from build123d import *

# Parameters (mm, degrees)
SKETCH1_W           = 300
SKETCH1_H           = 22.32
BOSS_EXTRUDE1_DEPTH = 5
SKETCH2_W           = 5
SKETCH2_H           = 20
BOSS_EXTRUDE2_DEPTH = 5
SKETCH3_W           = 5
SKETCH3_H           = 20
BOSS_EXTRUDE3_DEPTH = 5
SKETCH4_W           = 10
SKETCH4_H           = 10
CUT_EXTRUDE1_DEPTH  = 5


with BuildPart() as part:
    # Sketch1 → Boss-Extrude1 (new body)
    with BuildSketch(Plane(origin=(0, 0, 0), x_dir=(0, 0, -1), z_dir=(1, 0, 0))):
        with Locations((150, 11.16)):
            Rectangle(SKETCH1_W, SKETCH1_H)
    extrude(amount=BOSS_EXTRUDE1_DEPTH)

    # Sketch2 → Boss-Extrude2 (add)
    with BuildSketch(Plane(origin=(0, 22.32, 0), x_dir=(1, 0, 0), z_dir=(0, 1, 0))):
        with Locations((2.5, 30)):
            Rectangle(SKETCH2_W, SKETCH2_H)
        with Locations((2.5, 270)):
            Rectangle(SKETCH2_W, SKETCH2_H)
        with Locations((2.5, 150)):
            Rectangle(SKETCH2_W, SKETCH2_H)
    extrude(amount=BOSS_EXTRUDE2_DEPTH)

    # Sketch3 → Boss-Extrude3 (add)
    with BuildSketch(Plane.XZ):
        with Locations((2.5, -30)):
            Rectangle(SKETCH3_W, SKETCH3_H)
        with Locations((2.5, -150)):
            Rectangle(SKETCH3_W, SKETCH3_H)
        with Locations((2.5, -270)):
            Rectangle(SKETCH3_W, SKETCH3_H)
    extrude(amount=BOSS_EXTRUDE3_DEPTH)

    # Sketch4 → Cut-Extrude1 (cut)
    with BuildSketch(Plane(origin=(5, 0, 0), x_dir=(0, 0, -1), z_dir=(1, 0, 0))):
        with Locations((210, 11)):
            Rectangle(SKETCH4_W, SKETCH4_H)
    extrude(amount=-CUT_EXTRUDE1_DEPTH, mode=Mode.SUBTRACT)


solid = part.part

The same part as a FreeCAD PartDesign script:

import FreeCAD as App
import Part
import Sketcher
Q = App.Units.Quantity

doc = App.newDocument("Part")
params = doc.addObject("Spreadsheet::Sheet", "Params")
for row, (alias, value) in enumerate([
    ("sketch1_height", "300 mm"),
    ("sketch1_width", "22.32 mm"),
    ("pad1_length", "5 mm"),
    ("sketch2_width", "5 mm"),
    ("sketch2_height", "20 mm"),
    ("pad2_length", "5 mm"),
    ("sketch3_width", "5 mm"),
    ("sketch3_height", "20 mm"),
    ("pad3_length", "5 mm"),
    ("sketch4_width", "10 mm"),
    ("pocket1_length", "5 mm"),
], start=1):
    params.set(f"A{row}", alias)
    params.set(f"B{row}", "=" + value)
    params.setAlias(f"B{row}", alias)

body = doc.addObject("PartDesign::Body", "Body")

# Sketch on YZ plane
sketch1 = body.newObject("Sketcher::SketchObject", "Sketch")
sketch1.AttachmentSupport = (doc.getObject("YZ_Plane"), [""])
sketch1.MapMode = "FlatFace"
sketch1.addGeometry([
    Part.LineSegment(App.Vector(22, 0, 0), App.Vector(0, 0, 0)),
    Part.LineSegment(App.Vector(0, 0, 0), App.Vector(0, -300, 0)),
    Part.LineSegment(App.Vector(0, -300, 0), App.Vector(22, -300, 0)),
    Part.LineSegment(App.Vector(22, -300, 0), App.Vector(22, 0, 0)),
], False)
sketch1.addConstraint([
    Sketcher.Constraint("Coincident", 0, 2, 1, 1),
    Sketcher.Constraint("Coincident", 1, 2, 2, 1),
    Sketcher.Constraint("Coincident", 2, 2, 3, 1),
    Sketcher.Constraint("Coincident", 3, 2, 0, 1),
    Sketcher.Constraint("Horizontal", 0),
    Sketcher.Constraint("Vertical", 1),
    Sketcher.Constraint("Horizontal", 2),
    Sketcher.Constraint("Vertical", 3),
    Sketcher.Constraint("Coincident", 0, 2, -1, 1),
    Sketcher.Constraint("DistanceY", 1, 2, 1, 1, Q("300 mm")),
    Sketcher.Constraint("DistanceX", 0, 2, 0, 1, Q("22.32 mm")),
])
sketch1.setExpression("Constraints[9]", "Params.sketch1_height")
sketch1.setExpression("Constraints[10]", "Params.sketch1_width")
pad1 = body.newObject("PartDesign::Pad", "Pad")
pad1.Profile = sketch1
pad1.setExpression("Length", "Params.pad1_length")

# Sketch on XZ plane
sketch2 = body.newObject("Sketcher::SketchObject", "Sketch001")
sketch2.AttachmentSupport = (doc.getObject("XZ_Plane"), [""])
sketch2.MapMode = "FlatFace"
sketch2.AttachmentOffset = App.Placement(App.Vector(0, 0, -22.32), App.Rotation())
sketch2.addGeometry([
    Part.LineSegment(App.Vector(0, -40, 0), App.Vector(0, -20, 0)),  # 0
    Part.LineSegment(App.Vector(0, -20, 0), App.Vector(5, -20, 0)),  # 1
    Part.LineSegment(App.Vector(5, -20, 0), App.Vector(5, -40, 0)),  # 2
    Part.LineSegment(App.Vector(5, -40, 0), App.Vector(0, -40, 0)),  # 3
    Part.LineSegment(App.Vector(0, -280, 0), App.Vector(0, -260, 0)),  # 4
    Part.LineSegment(App.Vector(0, -260, 0), App.Vector(5, -260, 0)),  # 5
    Part.LineSegment(App.Vector(5, -260, 0), App.Vector(5, -280, 0)),  # 6
    Part.LineSegment(App.Vector(5, -280, 0), App.Vector(0, -280, 0)),  # 7
    Part.LineSegment(App.Vector(0, -160, 0), App.Vector(0, -140, 0)),  # 8
    Part.LineSegment(App.Vector(0, -140, 0), App.Vector(5, -140, 0)),  # 9
    Part.LineSegment(App.Vector(5, -140, 0), App.Vector(5, -160, 0)),  # 10
    Part.LineSegment(App.Vector(5, -160, 0), App.Vector(0, -160, 0)),  # 11
], False)
sketch2.addConstraint([
    Sketcher.Constraint("Coincident", 0, 2, 1, 1),
    Sketcher.Constraint("Coincident", 1, 2, 2, 1),
    Sketcher.Constraint("Coincident", 2, 2, 3, 1),
    Sketcher.Constraint("Coincident", 3, 2, 0, 1),
    Sketcher.Constraint("Coincident", 4, 2, 5, 1),
    Sketcher.Constraint("Coincident", 5, 2, 6, 1),
    Sketcher.Constraint("Coincident", 6, 2, 7, 1),
    Sketcher.Constraint("Coincident", 7, 2, 4, 1),
    Sketcher.Constraint("Coincident", 8, 2, 9, 1),
    Sketcher.Constraint("Coincident", 9, 2, 10, 1),
    Sketcher.Constraint("Coincident", 10, 2, 11, 1),
    Sketcher.Constraint("Coincident", 11, 2, 8, 1),
    Sketcher.Constraint("Vertical", 0),
    Sketcher.Constraint("Horizontal", 1),
    Sketcher.Constraint("Vertical", 2),
    Sketcher.Constraint("Horizontal", 3),
    Sketcher.Constraint("Vertical", 4),
    Sketcher.Constraint("Horizontal", 5),
    Sketcher.Constraint("Vertical", 6),
    Sketcher.Constraint("Horizontal", 7),
    Sketcher.Constraint("Vertical", 8),
    Sketcher.Constraint("Horizontal", 9),
    Sketcher.Constraint("Vertical", 10),
    Sketcher.Constraint("Horizontal", 11),
    Sketcher.Constraint("PointOnObject", 0, 2, -2),
    Sketcher.Constraint("PointOnObject", 4, 2, -2),
    Sketcher.Constraint("PointOnObject", 8, 2, -2),
    Sketcher.Constraint("Vertical", 2, 2, 5, 2),
    Sketcher.Constraint("Vertical", 6, 2, 9, 2),
    Sketcher.Constraint("Equal", 2, 4),
    Sketcher.Constraint("Equal", 6, 8),
    Sketcher.Constraint("DistanceX", 1, 1, 1, 2, Q("5 mm")),
    Sketcher.Constraint("DistanceY", 0, 1, 0, 2, Q("20 mm")),
    Sketcher.Constraint("DistanceY", 0, 2, -1, 1, Q("20 mm")),
    Sketcher.Constraint("DistanceY", 4, 2, -1, 1, Q("260 mm")),
    Sketcher.Constraint("DistanceY", 8, 2, -1, 1, Q("140 mm")),
])
sketch2.setExpression("Constraints[31]", "Params.sketch2_width")
sketch2.setExpression("Constraints[32]", "Params.sketch2_height")
pad2 = body.newObject("PartDesign::Pad", "Pad001")
pad2.Profile = sketch2
pad2.setExpression("Length", "Params.pad2_length")
pad2.Reversed = True

# Sketch on XZ plane
sketch3 = body.newObject("Sketcher::SketchObject", "Sketch002")
sketch3.AttachmentSupport = (doc.getObject("XZ_Plane"), [""])
sketch3.MapMode = "FlatFace"
sketch3.addGeometry([
    Part.LineSegment(App.Vector(0, -20, 0), App.Vector(0, -40, 0)),  # 0
    Part.LineSegment(App.Vector(0, -40, 0), App.Vector(5, -40, 0)),  # 1
    Part.LineSegment(App.Vector(5, -40, 0), App.Vector(5, -20, 0)),  # 2
    Part.LineSegment(App.Vector(5, -20, 0), App.Vector(0, -20, 0)),  # 3
    Part.LineSegment(App.Vector(0, -140, 0), App.Vector(0, -160, 0)),  # 4
    Part.LineSegment(App.Vector(0, -160, 0), App.Vector(5, -160, 0)),  # 5
    Part.LineSegment(App.Vector(5, -160, 0), App.Vector(5, -140, 0)),  # 6
    Part.LineSegment(App.Vector(5, -140, 0), App.Vector(0, -140, 0)),  # 7
    Part.LineSegment(App.Vector(0, -260, 0), App.Vector(0, -280, 0)),  # 8
    Part.LineSegment(App.Vector(0, -280, 0), App.Vector(5, -280, 0)),  # 9
    Part.LineSegment(App.Vector(5, -280, 0), App.Vector(5, -260, 0)),  # 10
    Part.LineSegment(App.Vector(5, -260, 0), App.Vector(0, -260, 0)),  # 11
], False)
sketch3.addConstraint([
    Sketcher.Constraint("Coincident", 0, 2, 1, 1),
    Sketcher.Constraint("Coincident", 1, 2, 2, 1),
    Sketcher.Constraint("Coincident", 2, 2, 3, 1),
    Sketcher.Constraint("Coincident", 3, 2, 0, 1),
    Sketcher.Constraint("Coincident", 4, 2, 5, 1),
    Sketcher.Constraint("Coincident", 5, 2, 6, 1),
    Sketcher.Constraint("Coincident", 6, 2, 7, 1),
    Sketcher.Constraint("Coincident", 7, 2, 4, 1),
    Sketcher.Constraint("Coincident", 8, 2, 9, 1),
    Sketcher.Constraint("Coincident", 9, 2, 10, 1),
    Sketcher.Constraint("Coincident", 10, 2, 11, 1),
    Sketcher.Constraint("Coincident", 11, 2, 8, 1),
    Sketcher.Constraint("Vertical", 0),
    Sketcher.Constraint("Horizontal", 1),
    Sketcher.Constraint("Vertical", 2),
    Sketcher.Constraint("Horizontal", 3),
    Sketcher.Constraint("Vertical", 4),
    Sketcher.Constraint("Horizontal", 5),
    Sketcher.Constraint("Vertical", 6),
    Sketcher.Constraint("Horizontal", 7),
    Sketcher.Constraint("Vertical", 8),
    Sketcher.Constraint("Horizontal", 9),
    Sketcher.Constraint("Vertical", 10),
    Sketcher.Constraint("Horizontal", 11),
    Sketcher.Constraint("PointOnObject", 0, 2, -2),
    Sketcher.Constraint("PointOnObject", 4, 2, -2),
    Sketcher.Constraint("PointOnObject", 8, 2, -2),
    Sketcher.Constraint("Vertical", 2, 2, 5, 2),
    Sketcher.Constraint("Vertical", 6, 2, 9, 2),
    Sketcher.Constraint("Equal", 2, 4),
    Sketcher.Constraint("Equal", 6, 8),
    Sketcher.Constraint("DistanceX", 1, 1, 1, 2, Q("5 mm")),
    Sketcher.Constraint("DistanceY", 0, 2, 0, 1, Q("20 mm")),
    Sketcher.Constraint("DistanceY", 0, 2, -1, 1, Q("40 mm")),
    Sketcher.Constraint("DistanceY", 4, 2, -1, 1, Q("160 mm")),
    Sketcher.Constraint("DistanceY", 8, 2, -1, 1, Q("280 mm")),
])
sketch3.setExpression("Constraints[31]", "Params.sketch3_width")
sketch3.setExpression("Constraints[32]", "Params.sketch3_height")
pad3 = body.newObject("PartDesign::Pad", "Pad002")
pad3.Profile = sketch3
pad3.setExpression("Length", "Params.pad3_length")

# Sketch on YZ plane
sketch4 = body.newObject("Sketcher::SketchObject", "Sketch003")
sketch4.AttachmentSupport = (doc.getObject("YZ_Plane"), [""])
sketch4.MapMode = "FlatFace"
sketch4.AttachmentOffset = App.Placement(App.Vector(0, 0, 5), App.Rotation())
sketch4.addGeometry([
    Part.LineSegment(App.Vector(16, -205, 0), App.Vector(6, -205, 0)),
    Part.LineSegment(App.Vector(6, -205, 0), App.Vector(6, -215, 0)),
    Part.LineSegment(App.Vector(6, -215, 0), App.Vector(16, -215, 0)),
    Part.LineSegment(App.Vector(16, -215, 0), App.Vector(16, -205, 0)),
], False)
sketch4.addConstraint([
    Sketcher.Constraint("Coincident", 0, 2, 1, 1),
    Sketcher.Constraint("Coincident", 1, 2, 2, 1),
    Sketcher.Constraint("Coincident", 2, 2, 3, 1),
    Sketcher.Constraint("Coincident", 3, 2, 0, 1),
    Sketcher.Constraint("Horizontal", 0),
    Sketcher.Constraint("Vertical", 1),
    Sketcher.Constraint("Horizontal", 2),
    Sketcher.Constraint("Vertical", 3),
    Sketcher.Constraint("Equal", 2, 1),
    Sketcher.Constraint("DistanceX", 0, 2, 0, 1, Q("10 mm")),
    Sketcher.Constraint("DistanceX", -1, 1, 0, 2, Q("6 mm")),
    Sketcher.Constraint("DistanceY", 0, 2, -1, 1, Q("205 mm")),
])
sketch4.setExpression("Constraints[9]", "Params.sketch4_width")
pocket1 = body.newObject("PartDesign::Pocket", "Pocket")
pocket1.Profile = sketch4
pocket1.setExpression("Length", "Params.pocket1_length")

doc.recompute()
